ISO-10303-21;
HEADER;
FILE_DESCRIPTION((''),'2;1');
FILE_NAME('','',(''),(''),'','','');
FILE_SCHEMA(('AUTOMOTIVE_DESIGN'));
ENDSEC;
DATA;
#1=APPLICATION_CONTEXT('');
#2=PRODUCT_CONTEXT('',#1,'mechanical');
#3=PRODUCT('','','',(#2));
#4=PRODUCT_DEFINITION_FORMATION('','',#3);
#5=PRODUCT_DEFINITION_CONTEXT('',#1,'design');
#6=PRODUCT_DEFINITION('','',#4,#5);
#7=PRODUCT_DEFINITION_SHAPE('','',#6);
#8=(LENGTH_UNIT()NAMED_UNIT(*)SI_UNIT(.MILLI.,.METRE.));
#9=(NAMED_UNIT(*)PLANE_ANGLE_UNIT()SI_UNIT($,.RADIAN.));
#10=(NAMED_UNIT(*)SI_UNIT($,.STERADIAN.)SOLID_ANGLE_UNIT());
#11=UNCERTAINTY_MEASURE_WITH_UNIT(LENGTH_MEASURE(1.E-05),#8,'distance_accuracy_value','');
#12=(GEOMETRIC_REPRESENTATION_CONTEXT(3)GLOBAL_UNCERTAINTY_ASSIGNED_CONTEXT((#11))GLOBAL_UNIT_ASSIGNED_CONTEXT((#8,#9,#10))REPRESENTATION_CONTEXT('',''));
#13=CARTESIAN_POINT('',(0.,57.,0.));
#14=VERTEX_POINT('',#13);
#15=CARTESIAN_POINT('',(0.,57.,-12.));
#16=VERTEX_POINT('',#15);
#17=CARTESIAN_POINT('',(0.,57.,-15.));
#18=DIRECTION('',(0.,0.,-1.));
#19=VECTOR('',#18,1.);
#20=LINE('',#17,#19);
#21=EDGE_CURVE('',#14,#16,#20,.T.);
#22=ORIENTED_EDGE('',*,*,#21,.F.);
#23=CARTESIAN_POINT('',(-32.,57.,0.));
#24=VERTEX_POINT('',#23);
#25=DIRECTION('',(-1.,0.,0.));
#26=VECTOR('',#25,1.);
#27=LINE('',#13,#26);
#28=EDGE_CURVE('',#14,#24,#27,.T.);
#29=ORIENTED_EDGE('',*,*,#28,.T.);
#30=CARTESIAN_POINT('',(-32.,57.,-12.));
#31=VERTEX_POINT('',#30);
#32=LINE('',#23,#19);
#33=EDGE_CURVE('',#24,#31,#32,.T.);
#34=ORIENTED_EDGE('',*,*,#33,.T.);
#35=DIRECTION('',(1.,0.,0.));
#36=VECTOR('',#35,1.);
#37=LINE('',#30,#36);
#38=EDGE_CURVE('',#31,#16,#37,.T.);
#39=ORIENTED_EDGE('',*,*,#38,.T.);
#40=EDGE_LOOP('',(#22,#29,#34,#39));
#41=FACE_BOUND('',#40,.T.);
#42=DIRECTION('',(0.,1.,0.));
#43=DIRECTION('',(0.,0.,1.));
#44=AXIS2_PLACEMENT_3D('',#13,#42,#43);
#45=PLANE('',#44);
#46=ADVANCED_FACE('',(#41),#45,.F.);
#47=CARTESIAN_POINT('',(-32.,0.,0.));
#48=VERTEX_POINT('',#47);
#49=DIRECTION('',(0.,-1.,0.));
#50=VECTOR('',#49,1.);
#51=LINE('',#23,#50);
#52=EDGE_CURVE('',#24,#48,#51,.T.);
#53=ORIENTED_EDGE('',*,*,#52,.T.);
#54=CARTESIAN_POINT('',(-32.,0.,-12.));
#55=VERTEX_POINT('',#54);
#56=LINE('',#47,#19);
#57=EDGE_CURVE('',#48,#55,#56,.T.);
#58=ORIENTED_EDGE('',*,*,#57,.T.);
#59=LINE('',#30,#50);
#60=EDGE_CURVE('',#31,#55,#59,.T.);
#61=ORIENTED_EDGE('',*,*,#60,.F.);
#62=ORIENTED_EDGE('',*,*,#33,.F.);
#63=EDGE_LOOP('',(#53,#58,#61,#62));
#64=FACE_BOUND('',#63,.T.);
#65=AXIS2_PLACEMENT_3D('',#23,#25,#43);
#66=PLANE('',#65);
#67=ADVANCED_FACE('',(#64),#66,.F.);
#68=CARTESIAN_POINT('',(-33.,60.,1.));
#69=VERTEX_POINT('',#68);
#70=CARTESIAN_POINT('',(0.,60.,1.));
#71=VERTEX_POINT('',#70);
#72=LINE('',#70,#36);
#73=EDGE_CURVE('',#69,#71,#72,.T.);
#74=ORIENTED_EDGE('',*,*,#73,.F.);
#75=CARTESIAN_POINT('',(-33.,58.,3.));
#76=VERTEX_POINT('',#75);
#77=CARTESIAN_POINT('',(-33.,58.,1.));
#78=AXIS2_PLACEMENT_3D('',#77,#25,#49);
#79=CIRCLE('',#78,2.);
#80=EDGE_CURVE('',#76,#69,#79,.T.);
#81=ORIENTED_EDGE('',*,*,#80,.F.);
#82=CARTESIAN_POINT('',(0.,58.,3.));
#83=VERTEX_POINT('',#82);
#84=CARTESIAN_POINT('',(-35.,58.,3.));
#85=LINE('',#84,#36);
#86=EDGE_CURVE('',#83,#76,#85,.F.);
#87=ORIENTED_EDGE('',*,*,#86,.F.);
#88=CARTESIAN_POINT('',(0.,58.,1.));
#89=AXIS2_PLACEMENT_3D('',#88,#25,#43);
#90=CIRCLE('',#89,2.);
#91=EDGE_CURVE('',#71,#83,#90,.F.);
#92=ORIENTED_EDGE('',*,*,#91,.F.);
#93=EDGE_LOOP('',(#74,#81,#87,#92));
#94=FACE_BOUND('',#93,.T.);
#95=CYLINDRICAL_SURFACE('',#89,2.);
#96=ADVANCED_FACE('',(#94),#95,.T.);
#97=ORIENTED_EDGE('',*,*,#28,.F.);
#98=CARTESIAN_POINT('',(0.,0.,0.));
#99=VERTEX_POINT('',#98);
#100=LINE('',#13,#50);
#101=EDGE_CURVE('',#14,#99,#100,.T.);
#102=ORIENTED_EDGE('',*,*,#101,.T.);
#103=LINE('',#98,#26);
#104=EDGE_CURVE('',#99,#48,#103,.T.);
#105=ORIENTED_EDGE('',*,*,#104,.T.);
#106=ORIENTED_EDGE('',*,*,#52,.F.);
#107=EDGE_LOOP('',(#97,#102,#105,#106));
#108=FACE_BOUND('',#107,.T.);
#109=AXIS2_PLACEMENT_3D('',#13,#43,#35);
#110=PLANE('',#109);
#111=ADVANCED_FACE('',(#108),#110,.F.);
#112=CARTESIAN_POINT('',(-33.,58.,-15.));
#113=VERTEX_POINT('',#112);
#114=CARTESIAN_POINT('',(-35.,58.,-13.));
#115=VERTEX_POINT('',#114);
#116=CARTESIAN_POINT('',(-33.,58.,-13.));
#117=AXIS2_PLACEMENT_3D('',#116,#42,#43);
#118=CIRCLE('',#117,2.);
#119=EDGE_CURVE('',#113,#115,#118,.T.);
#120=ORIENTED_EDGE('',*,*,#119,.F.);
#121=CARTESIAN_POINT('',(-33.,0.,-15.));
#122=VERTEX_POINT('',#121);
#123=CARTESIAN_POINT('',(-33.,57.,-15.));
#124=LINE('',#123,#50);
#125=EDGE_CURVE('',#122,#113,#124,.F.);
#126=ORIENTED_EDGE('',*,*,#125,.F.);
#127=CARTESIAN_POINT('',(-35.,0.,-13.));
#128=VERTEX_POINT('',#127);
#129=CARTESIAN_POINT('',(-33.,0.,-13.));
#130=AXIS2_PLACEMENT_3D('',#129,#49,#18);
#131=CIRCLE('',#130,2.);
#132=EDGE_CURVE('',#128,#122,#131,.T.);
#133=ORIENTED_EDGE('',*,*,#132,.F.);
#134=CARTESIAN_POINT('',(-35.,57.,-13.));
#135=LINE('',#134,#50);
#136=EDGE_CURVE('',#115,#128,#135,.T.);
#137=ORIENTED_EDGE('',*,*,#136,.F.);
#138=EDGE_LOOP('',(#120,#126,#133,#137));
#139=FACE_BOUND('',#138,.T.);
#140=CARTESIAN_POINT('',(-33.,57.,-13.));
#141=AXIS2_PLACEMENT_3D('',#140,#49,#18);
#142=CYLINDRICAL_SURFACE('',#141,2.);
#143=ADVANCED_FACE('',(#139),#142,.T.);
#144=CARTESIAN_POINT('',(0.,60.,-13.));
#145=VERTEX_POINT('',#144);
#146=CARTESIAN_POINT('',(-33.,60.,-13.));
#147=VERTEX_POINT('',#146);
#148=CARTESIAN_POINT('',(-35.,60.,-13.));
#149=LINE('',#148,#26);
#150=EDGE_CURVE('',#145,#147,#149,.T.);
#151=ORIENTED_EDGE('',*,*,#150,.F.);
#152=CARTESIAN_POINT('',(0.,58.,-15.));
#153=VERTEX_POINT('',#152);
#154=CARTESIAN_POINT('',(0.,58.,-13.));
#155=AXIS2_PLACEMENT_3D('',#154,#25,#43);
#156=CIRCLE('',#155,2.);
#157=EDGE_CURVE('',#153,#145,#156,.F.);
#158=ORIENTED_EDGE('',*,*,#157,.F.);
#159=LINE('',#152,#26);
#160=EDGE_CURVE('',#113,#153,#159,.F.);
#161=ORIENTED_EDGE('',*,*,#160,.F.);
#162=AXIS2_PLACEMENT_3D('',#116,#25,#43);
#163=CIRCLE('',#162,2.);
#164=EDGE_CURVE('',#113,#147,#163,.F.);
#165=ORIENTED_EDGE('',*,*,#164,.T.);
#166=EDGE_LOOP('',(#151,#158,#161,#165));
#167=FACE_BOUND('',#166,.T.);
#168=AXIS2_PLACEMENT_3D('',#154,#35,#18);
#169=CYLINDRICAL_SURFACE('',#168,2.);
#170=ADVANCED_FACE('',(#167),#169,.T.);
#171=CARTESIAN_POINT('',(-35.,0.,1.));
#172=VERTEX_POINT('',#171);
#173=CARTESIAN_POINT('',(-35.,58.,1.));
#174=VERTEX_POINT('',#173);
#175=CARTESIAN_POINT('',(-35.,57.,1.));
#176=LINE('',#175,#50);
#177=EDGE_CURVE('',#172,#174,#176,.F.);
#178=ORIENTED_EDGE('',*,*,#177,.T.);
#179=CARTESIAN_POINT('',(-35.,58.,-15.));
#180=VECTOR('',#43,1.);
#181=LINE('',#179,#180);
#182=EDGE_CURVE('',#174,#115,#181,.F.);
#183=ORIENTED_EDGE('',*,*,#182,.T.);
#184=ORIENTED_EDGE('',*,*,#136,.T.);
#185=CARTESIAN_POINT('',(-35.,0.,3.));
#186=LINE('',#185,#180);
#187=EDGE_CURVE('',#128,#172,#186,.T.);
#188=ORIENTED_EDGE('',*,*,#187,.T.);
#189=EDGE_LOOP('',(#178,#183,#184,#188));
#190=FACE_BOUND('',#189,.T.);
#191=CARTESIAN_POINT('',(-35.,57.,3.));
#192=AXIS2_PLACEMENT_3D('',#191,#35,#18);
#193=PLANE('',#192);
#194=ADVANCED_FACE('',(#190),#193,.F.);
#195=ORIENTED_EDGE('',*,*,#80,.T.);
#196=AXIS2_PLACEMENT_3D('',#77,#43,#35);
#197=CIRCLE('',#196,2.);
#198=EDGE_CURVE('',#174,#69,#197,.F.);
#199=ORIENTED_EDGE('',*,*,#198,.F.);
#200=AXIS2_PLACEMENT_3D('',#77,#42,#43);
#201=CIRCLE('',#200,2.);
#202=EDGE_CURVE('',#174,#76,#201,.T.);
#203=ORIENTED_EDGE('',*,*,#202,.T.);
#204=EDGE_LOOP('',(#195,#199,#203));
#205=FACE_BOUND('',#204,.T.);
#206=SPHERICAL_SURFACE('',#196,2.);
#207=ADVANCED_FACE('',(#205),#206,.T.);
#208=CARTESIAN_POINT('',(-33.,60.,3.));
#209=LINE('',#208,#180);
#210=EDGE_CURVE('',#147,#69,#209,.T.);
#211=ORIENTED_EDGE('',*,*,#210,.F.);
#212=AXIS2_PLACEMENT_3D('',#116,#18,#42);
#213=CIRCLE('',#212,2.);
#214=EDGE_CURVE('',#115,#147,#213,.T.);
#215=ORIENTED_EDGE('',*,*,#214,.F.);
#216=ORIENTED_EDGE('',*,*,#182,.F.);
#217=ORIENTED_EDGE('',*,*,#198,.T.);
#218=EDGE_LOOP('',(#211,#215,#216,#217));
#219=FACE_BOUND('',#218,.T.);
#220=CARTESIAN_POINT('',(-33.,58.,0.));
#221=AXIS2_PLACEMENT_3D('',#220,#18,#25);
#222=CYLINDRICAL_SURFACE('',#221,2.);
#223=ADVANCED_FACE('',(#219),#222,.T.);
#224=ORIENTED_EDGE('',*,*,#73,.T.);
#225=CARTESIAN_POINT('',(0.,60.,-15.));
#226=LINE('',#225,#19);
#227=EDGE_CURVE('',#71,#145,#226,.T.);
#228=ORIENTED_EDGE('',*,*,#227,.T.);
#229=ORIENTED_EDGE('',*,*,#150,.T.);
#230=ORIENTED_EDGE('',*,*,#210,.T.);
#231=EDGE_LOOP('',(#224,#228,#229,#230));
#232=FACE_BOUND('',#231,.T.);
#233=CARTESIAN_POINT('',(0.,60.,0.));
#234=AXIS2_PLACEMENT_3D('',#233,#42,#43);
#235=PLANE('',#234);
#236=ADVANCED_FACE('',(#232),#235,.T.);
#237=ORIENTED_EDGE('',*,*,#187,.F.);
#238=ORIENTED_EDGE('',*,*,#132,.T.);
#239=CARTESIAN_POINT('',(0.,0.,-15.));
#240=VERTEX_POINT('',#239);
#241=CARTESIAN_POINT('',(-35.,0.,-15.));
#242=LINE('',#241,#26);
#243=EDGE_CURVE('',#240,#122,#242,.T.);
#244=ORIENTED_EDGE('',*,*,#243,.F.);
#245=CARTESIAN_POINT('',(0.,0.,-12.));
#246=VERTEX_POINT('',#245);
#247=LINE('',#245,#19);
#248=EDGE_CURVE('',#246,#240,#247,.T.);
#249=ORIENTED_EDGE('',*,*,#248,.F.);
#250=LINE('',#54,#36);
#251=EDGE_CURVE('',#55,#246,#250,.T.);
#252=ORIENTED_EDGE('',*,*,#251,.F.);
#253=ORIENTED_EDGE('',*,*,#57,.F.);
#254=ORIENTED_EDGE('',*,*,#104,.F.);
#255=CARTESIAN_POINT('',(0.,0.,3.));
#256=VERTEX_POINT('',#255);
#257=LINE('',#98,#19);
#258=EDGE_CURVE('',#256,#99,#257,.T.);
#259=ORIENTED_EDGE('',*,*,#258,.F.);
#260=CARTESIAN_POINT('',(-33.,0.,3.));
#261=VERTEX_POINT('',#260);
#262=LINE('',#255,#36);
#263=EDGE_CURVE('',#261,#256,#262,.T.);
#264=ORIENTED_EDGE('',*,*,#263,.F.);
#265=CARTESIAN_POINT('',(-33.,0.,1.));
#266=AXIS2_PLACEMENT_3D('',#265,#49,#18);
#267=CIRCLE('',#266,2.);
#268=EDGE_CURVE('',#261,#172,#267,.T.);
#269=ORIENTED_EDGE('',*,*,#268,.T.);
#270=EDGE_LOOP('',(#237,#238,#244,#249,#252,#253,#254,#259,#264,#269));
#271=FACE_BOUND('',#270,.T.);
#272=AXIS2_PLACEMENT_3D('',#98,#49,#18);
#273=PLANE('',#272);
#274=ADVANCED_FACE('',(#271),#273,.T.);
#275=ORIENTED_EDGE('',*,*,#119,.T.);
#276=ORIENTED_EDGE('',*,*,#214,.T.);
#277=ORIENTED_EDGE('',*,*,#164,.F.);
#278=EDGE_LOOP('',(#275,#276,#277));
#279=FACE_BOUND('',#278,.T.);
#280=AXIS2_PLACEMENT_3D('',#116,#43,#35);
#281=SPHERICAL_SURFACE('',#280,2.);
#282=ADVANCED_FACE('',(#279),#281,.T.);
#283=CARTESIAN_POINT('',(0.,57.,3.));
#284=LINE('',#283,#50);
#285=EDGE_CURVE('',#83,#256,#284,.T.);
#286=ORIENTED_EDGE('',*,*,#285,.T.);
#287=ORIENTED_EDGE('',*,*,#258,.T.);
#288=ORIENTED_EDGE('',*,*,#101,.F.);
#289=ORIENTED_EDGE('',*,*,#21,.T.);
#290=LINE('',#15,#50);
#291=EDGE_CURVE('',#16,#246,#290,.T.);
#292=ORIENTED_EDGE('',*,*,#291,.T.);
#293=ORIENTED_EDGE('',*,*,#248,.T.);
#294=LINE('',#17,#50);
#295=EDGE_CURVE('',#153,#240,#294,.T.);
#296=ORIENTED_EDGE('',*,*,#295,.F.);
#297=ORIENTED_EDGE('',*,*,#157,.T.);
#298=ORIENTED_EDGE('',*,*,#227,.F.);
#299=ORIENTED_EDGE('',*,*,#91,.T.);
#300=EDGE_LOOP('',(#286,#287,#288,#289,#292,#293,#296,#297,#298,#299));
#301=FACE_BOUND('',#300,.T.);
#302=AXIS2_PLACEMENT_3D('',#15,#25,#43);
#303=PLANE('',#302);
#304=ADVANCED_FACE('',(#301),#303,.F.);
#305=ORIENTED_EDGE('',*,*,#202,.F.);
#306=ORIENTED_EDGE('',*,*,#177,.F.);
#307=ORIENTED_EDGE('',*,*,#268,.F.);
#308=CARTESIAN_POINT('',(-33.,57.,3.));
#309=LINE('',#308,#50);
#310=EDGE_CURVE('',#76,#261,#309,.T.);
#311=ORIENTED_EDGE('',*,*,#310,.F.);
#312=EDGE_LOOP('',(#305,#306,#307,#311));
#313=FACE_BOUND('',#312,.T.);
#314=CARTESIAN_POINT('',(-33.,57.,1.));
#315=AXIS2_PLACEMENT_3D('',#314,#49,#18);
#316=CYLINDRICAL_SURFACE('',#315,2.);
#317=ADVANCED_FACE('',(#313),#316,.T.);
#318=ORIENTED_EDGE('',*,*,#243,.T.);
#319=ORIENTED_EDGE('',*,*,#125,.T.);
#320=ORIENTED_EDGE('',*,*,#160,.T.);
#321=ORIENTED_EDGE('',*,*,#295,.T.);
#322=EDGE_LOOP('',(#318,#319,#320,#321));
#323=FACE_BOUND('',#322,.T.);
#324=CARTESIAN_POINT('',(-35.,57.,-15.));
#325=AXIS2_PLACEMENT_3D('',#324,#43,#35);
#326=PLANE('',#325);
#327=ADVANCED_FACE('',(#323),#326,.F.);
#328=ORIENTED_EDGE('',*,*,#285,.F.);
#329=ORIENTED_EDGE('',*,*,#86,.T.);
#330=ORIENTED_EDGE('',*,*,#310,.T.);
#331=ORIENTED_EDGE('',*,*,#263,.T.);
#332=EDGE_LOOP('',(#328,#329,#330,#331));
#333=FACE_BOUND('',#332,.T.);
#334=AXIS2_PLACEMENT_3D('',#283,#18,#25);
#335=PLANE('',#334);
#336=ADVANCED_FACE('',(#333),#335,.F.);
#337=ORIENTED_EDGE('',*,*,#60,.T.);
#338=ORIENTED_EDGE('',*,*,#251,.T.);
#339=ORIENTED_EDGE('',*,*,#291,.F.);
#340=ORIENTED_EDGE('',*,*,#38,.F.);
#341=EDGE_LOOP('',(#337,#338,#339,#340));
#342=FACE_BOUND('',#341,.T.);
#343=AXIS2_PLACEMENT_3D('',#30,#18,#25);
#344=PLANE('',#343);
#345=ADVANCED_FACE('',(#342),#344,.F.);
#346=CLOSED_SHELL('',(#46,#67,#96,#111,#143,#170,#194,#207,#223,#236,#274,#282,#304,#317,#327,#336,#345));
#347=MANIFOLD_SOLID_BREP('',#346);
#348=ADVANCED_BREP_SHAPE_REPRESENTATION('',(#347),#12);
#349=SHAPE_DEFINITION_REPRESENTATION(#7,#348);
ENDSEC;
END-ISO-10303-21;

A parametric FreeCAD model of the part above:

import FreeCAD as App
import Part
import Sketcher

V = App.Vector
Q = App.Units.Quantity


def edges_at(feature, points):
    """Names of the edges that pass closest to the given points."""
    edges = feature.Shape.Edges
    near = lambda p: min(range(len(edges)), key=lambda i: edges[i].distToShape(Part.Vertex(*p))[0])
    return sorted({f"Edge{near(p) + 1}" for p in points})


def add_polygon(sketch, points):
    """Adds a closed chain of lines whose ends are joined by coincident constraints."""
    first, n = sketch.GeometryCount, len(points)
    for a, b in zip(points, points[1:] + points[:1]):
        sketch.addGeometry(Part.LineSegment(App.Vector(*a, 0), App.Vector(*b, 0)), False)
    for i in range(n):
        sketch.addConstraint(Sketcher.Constraint("Coincident", first + i, 2, first + (i + 1) % n, 1))

doc = App.newDocument("Part")
params = doc.addObject("Spreadsheet::Sheet", "Params")
for row, (alias, value) in enumerate([
    ("sketch1_width", "32 mm"),
    ("sketch1_width2", "35 mm"),
    ("sketch1_height", "12 mm"),
    ("sketch1_height2", "3 mm"),
    ("pad1_length", "57 mm"),
    ("sketch2_width", "35 mm"),
    ("sketch2_height", "18 mm"),
    ("pad2_length", "3 mm"),
    ("fillet_radius", "2 mm"),
], start=1):
    params.set(f"A{row}", alias)
    params.set(f"B{row}", "=" + value)
    params.setAlias(f"B{row}", alias)

body = doc.addObject("PartDesign::Body", "Body")

sketch1 = body.newObject("Sketcher::SketchObject", "Sketch")
sketch1.AttachmentSupport = (doc.getObject("XZ_Plane"), [""])
sketch1.MapMode = "FlatFace"
add_polygon(sketch1, [(0, 0), (-32, 0), (-32, -12), (0, -12), (0, -15), (-35, -15), (-35, 3), (0, 3)])
sketch1.addConstraint(Sketcher.Constraint("Horizontal", 0))
sketch1.addConstraint(Sketcher.Constraint("Vertical", 1))
sketch1.addConstraint(Sketcher.Constraint("Horizontal", 2))
sketch1.addConstraint(Sketcher.Constraint("Vertical", 3))
sketch1.addConstraint(Sketcher.Constraint("Horizontal", 4))
sketch1.addConstraint(Sketcher.Constraint("Vertical", 5))
sketch1.addConstraint(Sketcher.Constraint("Horizontal", 6))
sketch1.addConstraint(Sketcher.Constraint("Vertical", 7))
sketch1.addConstraint(Sketcher.Constraint("Coincident", 7, 2, -1, 1))
sketch1.addConstraint(Sketcher.Constraint("PointOnObject", 2, 2, -2))
sketch1.addConstraint(Sketcher.Constraint("Equal", 3, 7))
sketch1.addConstraint(Sketcher.Constraint("DistanceX", 0, 2, 0, 1, Q("32 mm")))
sketch1.addConstraint(Sketcher.Constraint("DistanceX", 4, 2, 4, 1, Q("35 mm")))
sketch1.addConstraint(Sketcher.Constraint("DistanceY", 1, 2, 1, 1, Q("12 mm")))
sketch1.addConstraint(Sketcher.Constraint("DistanceY", 3, 2, 3, 1, Q("3 mm")))
sketch1.setExpression("Constraints[19]", "Params.sketch1_width")
sketch1.setExpression("Constraints[20]", "Params.sketch1_width2")
sketch1.setExpression("Constraints[21]", "Params.sketch1_height")
sketch1.setExpression("Constraints[22]", "Params.sketch1_height2")
pad1 = body.newObject("PartDesign::Pad", "Pad")
pad1.Profile = sketch1
pad1.setExpression("Length", "Params.pad1_length")
pad1.Reversed = True

sketch2 = body.newObject("Sketcher::SketchObject", "Sketch001")
sketch2.AttachmentSupport = (doc.getObject("XZ_Plane"), [""])
sketch2.MapMode = "FlatFace"
sketch2.AttachmentOffset = App.Placement(V(0, 0, -57), App.Rotation())
add_polygon(sketch2, [(-35, -15), (-35, 3), (0, 3), (0, -15)])
sketch2.addConstraint(Sketcher.Constraint("Vertical", 0))
sketch2.addConstraint(Sketcher.Constraint("Horizontal", 1))
sketch2.addConstraint(Sketcher.Constraint("Vertical", 2))
sketch2.addConstraint(Sketcher.Constraint("Horizontal", 3))
sketch2.addConstraint(Sketcher.Constraint("PointOnObject", 1, 2, -2))
sketch2.addConstraint(Sketcher.Constraint("DistanceX", 1, 1, 1, 2, Q("35 mm")))
sketch2.addConstraint(Sketcher.Constraint("DistanceY", 0, 1, 0, 2, Q("18 mm")))
sketch2.addConstraint(Sketcher.Constraint("DistanceY", -1, 1, 0, 2, Q("3 mm")))
sketch2.setExpression("Constraints[9]", "Params.sketch2_width")
sketch2.setExpression("Constraints[10]", "Params.sketch2_height")
pad2 = body.newObject("PartDesign::Pad", "Pad001")
pad2.Profile = sketch2
pad2.setExpression("Length", "Params.pad2_length")
pad2.Reversed = True
doc.recompute()

fillet = body.newObject("PartDesign::Fillet", "Fillet")
fillet.Base = (pad2, edges_at(pad2, [
    (-35, 30, 3),
    (-35, 30, -15),
    (-35, 60, -6),
    (-17.5, 60, 3),
    (-17.5, 60, -15),
]))
fillet.setExpression("Radius", "Params.fillet_radius")

doc.recompute()
